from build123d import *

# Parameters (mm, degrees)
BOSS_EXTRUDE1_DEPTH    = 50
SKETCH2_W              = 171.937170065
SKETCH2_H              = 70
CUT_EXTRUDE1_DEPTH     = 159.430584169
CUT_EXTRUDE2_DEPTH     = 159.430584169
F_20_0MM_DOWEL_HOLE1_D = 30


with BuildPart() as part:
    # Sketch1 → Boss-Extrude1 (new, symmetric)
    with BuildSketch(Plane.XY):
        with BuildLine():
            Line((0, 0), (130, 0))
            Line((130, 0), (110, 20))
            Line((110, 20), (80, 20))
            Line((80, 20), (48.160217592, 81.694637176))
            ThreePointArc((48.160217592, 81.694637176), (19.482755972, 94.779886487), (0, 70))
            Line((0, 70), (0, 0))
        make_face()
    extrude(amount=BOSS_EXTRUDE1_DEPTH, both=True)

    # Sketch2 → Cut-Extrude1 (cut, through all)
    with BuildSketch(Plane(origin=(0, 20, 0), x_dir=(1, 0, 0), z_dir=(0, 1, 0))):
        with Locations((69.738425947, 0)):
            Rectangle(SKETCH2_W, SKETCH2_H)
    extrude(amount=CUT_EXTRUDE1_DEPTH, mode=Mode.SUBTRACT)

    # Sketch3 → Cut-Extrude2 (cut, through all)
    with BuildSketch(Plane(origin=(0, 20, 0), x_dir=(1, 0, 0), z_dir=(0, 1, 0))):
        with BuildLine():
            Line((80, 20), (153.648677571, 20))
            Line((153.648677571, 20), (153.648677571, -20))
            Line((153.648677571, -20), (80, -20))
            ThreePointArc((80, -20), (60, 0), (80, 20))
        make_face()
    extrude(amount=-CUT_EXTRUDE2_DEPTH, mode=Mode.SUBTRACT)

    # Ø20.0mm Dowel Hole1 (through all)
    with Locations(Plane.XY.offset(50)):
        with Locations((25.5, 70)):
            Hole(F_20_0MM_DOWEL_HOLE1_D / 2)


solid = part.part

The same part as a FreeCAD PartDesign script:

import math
import FreeCAD as App
import Part
import Sketcher
Q = App.Units.Quantity


def add_polygon(sketch, points):
    """Adds a closed chain of lines whose ends are joined by coincident constraints."""
    first, n = sketch.GeometryCount, len(points)
    for a, b in zip(points, points[1:] + points[:1]):
        sketch.addGeometry(Part.LineSegment(App.Vector(*a, 0), App.Vector(*b, 0)), False)
    for i in range(n):
        sketch.addConstraint(Sketcher.Constraint("Coincident", first + i, 2, first + (i + 1) % n, 1))

doc = App.newDocument("Part")
body = doc.addObject("PartDesign::Body", "Body")

# Sketch on XY plane
sketch1 = doc.addObject("Sketcher::SketchObject", "Sketch")
body.addObject(sketch1)
sketch1.AttachmentSupport = (doc.XY_Plane, [""])
sketch1.MapMode = "FlatFace"
sketch1.addGeometry(Part.LineSegment(App.Vector(0, 0, 0), App.Vector(130, 0, 0)), False)
sketch1.addGeometry(Part.LineSegment(App.Vector(130, 0, 0), App.Vector(110, 20, 0)), False)
sketch1.addGeometry(Part.LineSegment(App.Vector(110, 20, 0), App.Vector(80, 20, 0)), False)
sketch1.addGeometry(Part.LineSegment(App.Vector(80, 20, 0), App.Vector(48, 82, 0)), False)
sketch1.addGeometry(Part.ArcOfCircle(Part.Circle(App.Vector(26, 70, 0), App.Vector(0, 0, 1), 26), math.radians(27), math.radians(180)), False)
sketch1.addGeometry(Part.LineSegment(App.Vector(0, 70, 0), App.Vector(0, 0, 0)), False)
sketch1.addConstraint(Sketcher.Constraint("Coincident", 0, 2, 1, 1))
sketch1.addConstraint(Sketcher.Constraint("Coincident", 1, 2, 2, 1))
sketch1.addConstraint(Sketcher.Constraint("Coincident", 2, 2, 3, 1))
sketch1.addConstraint(Sketcher.Constraint("Tangent", 3, 2, 4, 1))
sketch1.addConstraint(Sketcher.Constraint("Tangent", 4, 2, 5, 1))
sketch1.addConstraint(Sketcher.Constraint("Coincident", 5, 2, 0, 1))
sketch1.addConstraint(Sketcher.Constraint("Horizontal", 0))
sketch1.addConstraint(Sketcher.Constraint("Horizontal", 2))
sketch1.addConstraint(Sketcher.Constraint("Vertical", 5))
sketch1.addConstraint(Sketcher.Constraint("Coincident", 5, 2, -1, 1))
sketch1.addConstraint(Sketcher.Constraint("Radius", 4, Q("25.5 mm")))
sketch1.addConstraint(Sketcher.Constraint("DistanceX", 0, 1, 0, 2, Q("130 mm")))
sketch1.addConstraint(Sketcher.Constraint("DistanceX", 2, 2, 2, 1, Q("30 mm")))
sketch1.addConstraint(Sketcher.Constraint("DistanceY", 5, 2, 5, 1, Q("70 mm")))
sketch1.addConstraint(Sketcher.Constraint("Angle", 1, Q("135 deg")))
sketch1.addConstraint(Sketcher.Constraint("DistanceX", -1, 1, 1, 2, Q("110 mm")))
pad1 = doc.addObject("PartDesign::Pad", "Pad")
body.addObject(pad1)
pad1.Profile = sketch1
pad1.Length = 100
pad1.Midplane = True

# Sketch on XZ plane
sketch2 = doc.addObject("Sketcher::SketchObject", "Sketch001")
body.addObject(sketch2)
sketch2.AttachmentSupport = (doc.XZ_Plane, [""])
sketch2.MapMode = "FlatFace"
sketch2.AttachmentOffset = App.Placement(App.Vector(0, 0, -20), App.Rotation())
add_polygon(sketch2, [(-16, -35), (-16, 35), (156, 35), (156, -35)])  # lines 0-3
sketch2.addConstraint(Sketcher.Constraint("Vertical", 0))
sketch2.addConstraint(Sketcher.Constraint("Horizontal", 1))
sketch2.addConstraint(Sketcher.Constraint("Vertical", 2))
sketch2.addConstraint(Sketcher.Constraint("Horizontal", 3))
sketch2.addConstraint(Sketcher.Constraint("DistanceY", 0, 1, 0, 2, Q("70 mm")))
sketch2.addConstraint(Sketcher.Constraint("DistanceY", -1, 1, 0, 2, Q("35 mm")))
sketch2.addConstraint(Sketcher.Constraint("DistanceX", 1, 1, 1, 2, Q("171.93717 mm")))
sketch2.addConstraint(Sketcher.Constraint("DistanceX", 0, 2, -1, 1, Q("16.230159 mm")))
pocket1 = doc.addObject("PartDesign::Pocket", "Pocket")
body.addObject(pocket1)
pocket1.Profile = sketch2
pocket1.Type = "ThroughAll"

# Sketch on XZ plane
sketch3 = doc.addObject("Sketcher::SketchObject", "Sketch002")
body.addObject(sketch3)
sketch3.AttachmentSupport = (doc.XZ_Plane, [""])
sketch3.MapMode = "FlatFace"
sketch3.AttachmentOffset = App.Placement(App.Vector(0, 0, -20), App.Rotation())
sketch3.addGeometry(Part.LineSegment(App.Vector(154, -20, 0), App.Vector(80, -20, 0)), False)
sketch3.addGeometry(Part.ArcOfCircle(Part.Circle(App.Vector(80, 0, 0), App.Vector(0, 0, 1), 20), math.radians(90), math.radians(270)), False)
sketch3.addGeometry(Part.LineSegment(App.Vector(80, 20, 0), App.Vector(154, 20, 0)), False)
sketch3.addGeometry(Part.LineSegment(App.Vector(154, 20, 0), App.Vector(154, -20, 0)), False)
sketch3.addConstraint(Sketcher.Constraint("Tangent", 0, 2, 1, 2))
sketch3.addConstraint(Sketcher.Constraint("Tangent", 1, 1, 2, 1))
sketch3.addConstraint(Sketcher.Constraint("Coincident", 2, 2, 3, 1))
sketch3.addConstraint(Sketcher.Constraint("Coincident", 3, 2, 0, 1))
sketch3.addConstraint(Sketcher.Constraint("Horizontal", 0))
sketch3.addConstraint(Sketcher.Constraint("Horizontal", 2))
sketch3.addConstraint(Sketcher.Constraint("Vertical", 3))
sketch3.addConstraint(Sketcher.Constraint("PointOnObject", 1, 3, -1))
sketch3.addConstraint(Sketcher.Constraint("Radius", 1, Q("20 mm")))
sketch3.addConstraint(Sketcher.Constraint("DistanceX", -1, 1, 1, 3, Q("80 mm")))
sketch3.addConstraint(Sketcher.Constraint("DistanceX", 0, 2, 0, 1, Q("73.648678 mm")))
pocket2 = doc.addObject("PartDesign::Pocket", "Pocket001")
body.addObject(pocket2)
pocket2.Profile = sketch3
pocket2.Type = "ThroughAll"
pocket2.Reversed = True

# Sketch on XY plane
sketch4 = doc.addObject("Sketcher::SketchObject", "Sketch003")
body.addObject(sketch4)
sketch4.AttachmentSupport = (doc.XY_Plane, [""])
sketch4.MapMode = "FlatFace"
sketch4.AttachmentOffset = App.Placement(App.Vector(0, 0, 50), App.Rotation())
sketch4.addGeometry(Part.Circle(App.Vector(26, 70, 0), App.Vector(0, 0, 1), 15), False)
sketch4.addConstraint(Sketcher.Constraint("Diameter", 0, Q("30 mm")))
sketch4.addConstraint(Sketcher.Constraint("DistanceY", -1, 1, 0, 3, Q("70 mm")))
sketch4.addConstraint(Sketcher.Constraint("DistanceX", -1, 1, 0, 3, Q("25.5 mm")))
doc.recompute()
hole = doc.addObject("PartDesign::Hole", "Hole")
body.addObject(hole)
hole.Profile = sketch4
hole.ThreadType = "None"
hole.Diameter = 30
hole.DepthType = "ThroughAll"

doc.recompute()
